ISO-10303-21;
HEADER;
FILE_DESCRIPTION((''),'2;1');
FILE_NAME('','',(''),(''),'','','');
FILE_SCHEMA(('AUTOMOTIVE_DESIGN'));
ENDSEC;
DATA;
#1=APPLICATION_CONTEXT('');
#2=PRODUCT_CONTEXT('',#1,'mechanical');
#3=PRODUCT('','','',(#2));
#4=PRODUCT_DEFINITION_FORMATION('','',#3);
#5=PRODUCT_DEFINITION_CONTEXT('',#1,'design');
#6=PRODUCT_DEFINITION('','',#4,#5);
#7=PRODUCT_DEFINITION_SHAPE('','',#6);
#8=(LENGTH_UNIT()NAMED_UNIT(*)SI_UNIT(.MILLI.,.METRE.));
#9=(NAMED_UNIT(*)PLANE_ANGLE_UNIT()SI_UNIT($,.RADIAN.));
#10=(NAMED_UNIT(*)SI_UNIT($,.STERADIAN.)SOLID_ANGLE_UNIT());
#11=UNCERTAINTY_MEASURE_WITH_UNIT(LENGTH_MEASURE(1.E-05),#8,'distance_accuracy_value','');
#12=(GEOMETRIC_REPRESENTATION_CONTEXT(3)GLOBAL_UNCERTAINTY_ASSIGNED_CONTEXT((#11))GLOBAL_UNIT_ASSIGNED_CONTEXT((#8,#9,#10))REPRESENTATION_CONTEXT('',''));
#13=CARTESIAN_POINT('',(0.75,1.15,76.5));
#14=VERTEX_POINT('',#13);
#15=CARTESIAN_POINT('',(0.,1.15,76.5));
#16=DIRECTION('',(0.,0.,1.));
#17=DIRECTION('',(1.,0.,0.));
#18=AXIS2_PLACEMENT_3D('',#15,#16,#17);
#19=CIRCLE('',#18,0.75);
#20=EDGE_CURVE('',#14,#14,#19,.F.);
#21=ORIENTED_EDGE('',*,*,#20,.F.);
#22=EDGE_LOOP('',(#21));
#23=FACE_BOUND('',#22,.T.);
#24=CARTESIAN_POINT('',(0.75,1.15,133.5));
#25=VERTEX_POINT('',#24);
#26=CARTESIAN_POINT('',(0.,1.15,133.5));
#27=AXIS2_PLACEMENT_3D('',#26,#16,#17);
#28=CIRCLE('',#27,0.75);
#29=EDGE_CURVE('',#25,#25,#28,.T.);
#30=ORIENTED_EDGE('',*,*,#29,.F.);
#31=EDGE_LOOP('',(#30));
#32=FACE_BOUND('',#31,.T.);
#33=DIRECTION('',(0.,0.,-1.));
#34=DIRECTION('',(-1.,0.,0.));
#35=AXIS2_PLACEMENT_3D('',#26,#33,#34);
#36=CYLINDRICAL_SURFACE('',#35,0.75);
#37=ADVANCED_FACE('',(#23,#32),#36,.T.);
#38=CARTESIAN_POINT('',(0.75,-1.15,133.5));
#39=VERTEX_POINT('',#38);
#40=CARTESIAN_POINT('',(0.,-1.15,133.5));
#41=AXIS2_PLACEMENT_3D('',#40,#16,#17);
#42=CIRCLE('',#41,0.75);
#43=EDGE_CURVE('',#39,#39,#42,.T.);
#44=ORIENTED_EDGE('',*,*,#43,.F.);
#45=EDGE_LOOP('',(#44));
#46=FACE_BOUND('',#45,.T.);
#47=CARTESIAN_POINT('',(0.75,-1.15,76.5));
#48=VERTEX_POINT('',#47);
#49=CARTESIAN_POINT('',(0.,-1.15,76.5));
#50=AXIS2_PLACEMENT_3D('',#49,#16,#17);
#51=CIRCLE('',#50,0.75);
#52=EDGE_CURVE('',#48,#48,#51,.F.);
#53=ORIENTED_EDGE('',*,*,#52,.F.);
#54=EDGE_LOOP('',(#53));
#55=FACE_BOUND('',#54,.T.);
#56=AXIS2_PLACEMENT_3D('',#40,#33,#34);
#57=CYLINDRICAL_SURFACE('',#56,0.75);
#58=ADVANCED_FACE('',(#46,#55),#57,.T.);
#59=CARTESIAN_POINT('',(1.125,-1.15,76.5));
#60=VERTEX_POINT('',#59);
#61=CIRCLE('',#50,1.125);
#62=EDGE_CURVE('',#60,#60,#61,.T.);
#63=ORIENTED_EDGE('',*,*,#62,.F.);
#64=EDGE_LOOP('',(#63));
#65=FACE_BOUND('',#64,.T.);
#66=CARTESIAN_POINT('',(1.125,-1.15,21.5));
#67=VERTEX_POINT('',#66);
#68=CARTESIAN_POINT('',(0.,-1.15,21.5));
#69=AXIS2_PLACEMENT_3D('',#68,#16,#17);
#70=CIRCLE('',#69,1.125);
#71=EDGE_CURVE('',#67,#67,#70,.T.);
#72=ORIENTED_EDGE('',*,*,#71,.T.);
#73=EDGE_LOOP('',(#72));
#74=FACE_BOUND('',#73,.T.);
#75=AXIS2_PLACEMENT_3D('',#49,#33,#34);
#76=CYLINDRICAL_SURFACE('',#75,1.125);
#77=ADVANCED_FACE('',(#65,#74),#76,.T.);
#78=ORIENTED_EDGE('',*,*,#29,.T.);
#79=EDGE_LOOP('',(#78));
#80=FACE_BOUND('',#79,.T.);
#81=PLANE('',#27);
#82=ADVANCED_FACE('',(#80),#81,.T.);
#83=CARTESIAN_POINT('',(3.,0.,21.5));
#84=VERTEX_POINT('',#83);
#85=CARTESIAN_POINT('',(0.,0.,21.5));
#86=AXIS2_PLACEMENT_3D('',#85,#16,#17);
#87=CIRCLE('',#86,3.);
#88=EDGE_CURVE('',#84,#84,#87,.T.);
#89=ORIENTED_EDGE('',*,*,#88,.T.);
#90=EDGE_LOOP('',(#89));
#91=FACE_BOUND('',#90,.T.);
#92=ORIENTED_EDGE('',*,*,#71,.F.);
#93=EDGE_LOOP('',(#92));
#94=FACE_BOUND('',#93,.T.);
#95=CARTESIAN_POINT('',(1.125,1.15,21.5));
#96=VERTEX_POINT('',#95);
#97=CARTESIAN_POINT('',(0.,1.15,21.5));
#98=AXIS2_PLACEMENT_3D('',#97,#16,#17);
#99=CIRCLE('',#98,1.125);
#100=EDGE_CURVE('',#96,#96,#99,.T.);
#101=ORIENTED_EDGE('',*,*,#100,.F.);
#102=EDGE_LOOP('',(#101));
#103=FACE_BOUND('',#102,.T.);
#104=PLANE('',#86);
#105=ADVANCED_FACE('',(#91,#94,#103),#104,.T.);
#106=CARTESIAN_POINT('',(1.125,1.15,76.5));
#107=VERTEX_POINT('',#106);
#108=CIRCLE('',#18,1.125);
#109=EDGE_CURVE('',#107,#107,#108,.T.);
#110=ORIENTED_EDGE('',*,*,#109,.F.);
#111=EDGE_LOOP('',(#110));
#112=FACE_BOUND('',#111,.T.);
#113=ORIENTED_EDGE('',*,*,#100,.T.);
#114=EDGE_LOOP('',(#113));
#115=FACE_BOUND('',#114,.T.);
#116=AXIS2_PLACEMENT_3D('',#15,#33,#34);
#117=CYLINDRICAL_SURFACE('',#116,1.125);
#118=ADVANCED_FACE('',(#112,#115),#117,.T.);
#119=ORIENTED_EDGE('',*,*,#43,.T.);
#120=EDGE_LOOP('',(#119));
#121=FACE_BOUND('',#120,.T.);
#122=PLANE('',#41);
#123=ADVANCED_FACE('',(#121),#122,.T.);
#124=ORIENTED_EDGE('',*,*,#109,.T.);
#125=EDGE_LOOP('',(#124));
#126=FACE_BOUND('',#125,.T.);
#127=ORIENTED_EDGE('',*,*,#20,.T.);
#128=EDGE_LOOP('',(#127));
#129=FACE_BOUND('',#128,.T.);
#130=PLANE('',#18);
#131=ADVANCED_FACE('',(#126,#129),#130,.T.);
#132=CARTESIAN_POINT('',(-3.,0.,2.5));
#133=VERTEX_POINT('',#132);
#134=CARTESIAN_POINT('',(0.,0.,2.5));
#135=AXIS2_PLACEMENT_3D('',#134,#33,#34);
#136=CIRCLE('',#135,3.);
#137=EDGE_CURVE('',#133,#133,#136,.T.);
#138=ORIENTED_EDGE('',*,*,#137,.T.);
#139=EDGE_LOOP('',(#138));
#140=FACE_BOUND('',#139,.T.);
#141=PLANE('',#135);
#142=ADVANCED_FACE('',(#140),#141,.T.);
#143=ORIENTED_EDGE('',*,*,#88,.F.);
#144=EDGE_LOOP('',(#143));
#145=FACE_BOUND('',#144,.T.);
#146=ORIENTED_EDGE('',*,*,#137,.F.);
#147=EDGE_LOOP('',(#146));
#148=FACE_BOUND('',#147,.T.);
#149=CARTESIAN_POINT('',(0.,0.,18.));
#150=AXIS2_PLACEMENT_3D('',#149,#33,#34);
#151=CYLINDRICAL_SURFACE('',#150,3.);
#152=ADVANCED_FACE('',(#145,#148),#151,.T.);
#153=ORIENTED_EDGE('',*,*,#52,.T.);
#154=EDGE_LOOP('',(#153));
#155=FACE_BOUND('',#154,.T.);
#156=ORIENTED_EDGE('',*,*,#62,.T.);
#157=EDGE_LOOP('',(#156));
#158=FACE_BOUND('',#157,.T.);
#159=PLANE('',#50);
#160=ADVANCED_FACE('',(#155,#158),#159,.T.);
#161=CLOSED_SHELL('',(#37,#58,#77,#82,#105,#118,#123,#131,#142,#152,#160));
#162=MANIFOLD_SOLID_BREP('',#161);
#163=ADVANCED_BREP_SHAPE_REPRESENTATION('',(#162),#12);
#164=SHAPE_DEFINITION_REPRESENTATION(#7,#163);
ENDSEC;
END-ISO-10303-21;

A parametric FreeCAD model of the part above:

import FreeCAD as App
import Part
import Sketcher
from FreeCAD import Vector
Q = App.Units.Quantity

doc = App.newDocument("Part")
params = doc.addObject("Spreadsheet::Sheet", "Params")
for row, (alias, value) in enumerate([
    ("sketch1_diameter", "6 mm"),
    ("pad1_length", "18 mm"),
    ("sketch2_diameter", "6 mm"),
    ("pad2_length", "21.5 mm"),
    ("pad2_length2", "1.5 mm"),
    ("sketch3_diameter", "6 mm"),
    ("pocket1_length", "4 mm"),
    ("sketch4_diameter", "2.25 mm"),
    ("pad3_length", "55 mm"),
    ("sketch5_diameter", "1.5 mm"),
    ("pad4_length", "112 mm"),
], start=1):
    params.set(f"A{row}", alias)
    params.set(f"B{row}", "=" + value)
    params.setAlias(f"B{row}", alias)

body = doc.addObject("PartDesign::Body", "Body")

sketch1 = body.newObject("Sketcher::SketchObject", "Sketch")
sketch1.AttachmentSupport = (doc.getObject("XY_Plane"), [""])
sketch1.MapMode = "FlatFace"
sketch1.addGeometry(Part.Circle(Vector(0, 0, 0), Vector(0, 0, 1), 3), False)
sketch1.addConstraint([
    Sketcher.Constraint("Coincident", 0, 3, -1, 1),
    Sketcher.Constraint("Diameter", 0, Q("6 mm")),
])
sketch1.setExpression("Constraints[1]", "Params.sketch1_diameter")
pad1 = body.newObject("PartDesign::Pad", "Pad")
pad1.Profile = sketch1
pad1.setExpression("Length", "Params.pad1_length")

sketch2 = body.newObject("Sketcher::SketchObject", "Sketch001")
sketch2.AttachmentSupport = (doc.getObject("XY_Plane"), [""])
sketch2.MapMode = "FlatFace"
sketch2.addGeometry(Part.Circle(Vector(0, 0, 0), Vector(0, 0, 1), 3), False)
sketch2.addConstraint([
    Sketcher.Constraint("Coincident", 0, 3, -1, 1),
    Sketcher.Constraint("Diameter", 0, Q("6 mm")),
])
sketch2.setExpression("Constraints[1]", "Params.sketch2_diameter")
pad2 = body.newObject("PartDesign::Pad", "Pad001")
pad2.Profile = sketch2
pad2.Type = "TwoLengths"
pad2.setExpression("Length", "Params.pad2_length")
pad2.setExpression("Length2", "Params.pad2_length2")

sketch3 = body.newObject("Sketcher::SketchObject", "Sketch002")
sketch3.AttachmentSupport = (doc.getObject("XY_Plane"), [""])
sketch3.MapMode = "FlatFace"
sketch3.AttachmentOffset = App.Placement(Vector(0, 0, -1.5), App.Rotation())
sketch3.addGeometry(Part.Circle(Vector(0, 0, 0), Vector(0, 0, 1), 3), False)
sketch3.addConstraint([
    Sketcher.Constraint("Coincident", 0, 3, -1, 1),
    Sketcher.Constraint("Diameter", 0, Q("6 mm")),
])
sketch3.setExpression("Constraints[1]", "Params.sketch3_diameter")
pocket1 = body.newObject("PartDesign::Pocket", "Pocket")
pocket1.Profile = sketch3
pocket1.setExpression("Length", "Params.pocket1_length")
pocket1.Reversed = True

sketch4 = body.newObject("Sketcher::SketchObject", "Sketch003")
sketch4.AttachmentSupport = (doc.getObject("XY_Plane"), [""])
sketch4.MapMode = "FlatFace"
sketch4.AttachmentOffset = App.Placement(Vector(0, 0, 21.5), App.Rotation())
sketch4.addGeometry([
    Part.Circle(Vector(0, -1.1, 0), Vector(0, 0, 1), 1.1),
    Part.Circle(Vector(0, 1.1, 0), Vector(0, 0, 1), 1.1),
], False)
sketch4.addConstraint([
    Sketcher.Constraint("Equal", 0, 1),
    Sketcher.Constraint("Symmetric", 0, 3, 1, 3, -1, 1),
    Sketcher.Constraint("PointOnObject", 0, 3, -2),
    Sketcher.Constraint("Diameter", 0, Q("2.25 mm")),
    Sketcher.Constraint("DistanceY", 0, 3, 1, 3, Q("2.3 mm")),
])
sketch4.setExpression("Constraints[3]", "Params.sketch4_diameter")
pad3 = body.newObject("PartDesign::Pad", "Pad002")
pad3.Profile = sketch4
pad3.setExpression("Length", "Params.pad3_length")

sketch5 = body.newObject("Sketcher::SketchObject", "Sketch004")
sketch5.AttachmentSupport = (doc.getObject("XY_Plane"), [""])
sketch5.MapMode = "FlatFace"
sketch5.AttachmentOffset = App.Placement(Vector(0, 0, 21.5), App.Rotation())
sketch5.addGeometry([
    Part.Circle(Vector(0, -1.1, 0), Vector(0, 0, 1), 0.8),
    Part.Circle(Vector(0, 1.1, 0), Vector(0, 0, 1), 0.8),
], False)
sketch5.addConstraint([
    Sketcher.Constraint("Equal", 0, 1),
    Sketcher.Constraint("Symmetric", 0, 3, 1, 3, -1, 1),
    Sketcher.Constraint("PointOnObject", 0, 3, -2),
    Sketcher.Constraint("Diameter", 0, Q("1.5 mm")),
    Sketcher.Constraint("DistanceY", 0, 3, 1, 3, Q("2.3 mm")),
])
sketch5.setExpression("Constraints[3]", "Params.sketch5_diameter")
pad4 = body.newObject("PartDesign::Pad", "Pad003")
pad4.Profile = sketch5
pad4.setExpression("Length", "Params.pad4_length")

doc.recompute()
